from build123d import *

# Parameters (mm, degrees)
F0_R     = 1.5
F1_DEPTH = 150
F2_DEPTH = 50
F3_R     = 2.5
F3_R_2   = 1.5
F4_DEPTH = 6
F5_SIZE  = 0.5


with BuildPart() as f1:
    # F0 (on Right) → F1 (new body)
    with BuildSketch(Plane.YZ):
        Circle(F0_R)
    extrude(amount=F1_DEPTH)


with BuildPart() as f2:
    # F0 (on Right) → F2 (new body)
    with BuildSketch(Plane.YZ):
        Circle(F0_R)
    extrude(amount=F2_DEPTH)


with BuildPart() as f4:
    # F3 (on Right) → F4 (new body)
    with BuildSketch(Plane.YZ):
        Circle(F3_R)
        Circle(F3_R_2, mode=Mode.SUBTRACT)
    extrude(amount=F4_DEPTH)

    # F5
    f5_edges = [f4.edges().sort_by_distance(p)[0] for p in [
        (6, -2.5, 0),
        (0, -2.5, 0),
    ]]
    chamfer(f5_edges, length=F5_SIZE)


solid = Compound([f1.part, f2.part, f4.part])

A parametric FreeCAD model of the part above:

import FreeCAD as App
import Part
import Sketcher
Q = App.Units.Quantity


def edges_at(feature, points):
    """Names of the edges that pass closest to the given points."""
    edges = feature.Shape.Edges
    near = lambda p: min(range(len(edges)), key=lambda i: edges[i].distToShape(Part.Vertex(*p))[0])
    return sorted({f"Edge{near(p) + 1}" for p in points})

doc = App.newDocument("Part")
body = doc.addObject("PartDesign::Body", "Body")

# Sketch on YZ plane
sketch1 = body.newObject("Sketcher::SketchObject", "Sketch")
sketch1.AttachmentSupport = (doc.getObject("YZ_Plane"), [""])
sketch1.MapMode = "FlatFace"
sketch1.addGeometry(Part.Circle(App.Vector(0, 0, 0), App.Vector(0, 0, 1), 1.5), False)
sketch1.addConstraint([
    Sketcher.Constraint("Coincident", 0, 3, -1, 1),
    Sketcher.Constraint("Diameter", 0, Q("3 mm")),
])
pad1 = body.newObject("PartDesign::Pad", "Pad")
pad1.Profile = sketch1
pad1.Length = 150
body2 = doc.addObject("PartDesign::Body", "Body001")

# Sketch on YZ plane
sketch2 = body2.newObject("Sketcher::SketchObject", "Sketch001")
sketch2.AttachmentSupport = (doc.getObject("YZ_Plane001"), [""])
sketch2.MapMode = "FlatFace"
sketch2.addGeometry(Part.Circle(App.Vector(0, 0, 0), App.Vector(0, 0, 1), 1.5), False)
sketch2.addConstraint([
    Sketcher.Constraint("Coincident", 0, 3, -1, 1),
    Sketcher.Constraint("Diameter", 0, Q("3 mm")),
])
pad2 = body2.newObject("PartDesign::Pad", "Pad001")
pad2.Profile = sketch2
pad2.Length = 50
body3 = doc.addObject("PartDesign::Body", "Body002")

# Sketch on YZ plane
sketch3 = body3.newObject("Sketcher::SketchObject", "Sketch002")
sketch3.AttachmentSupport = (doc.getObject("YZ_Plane002"), [""])
sketch3.MapMode = "FlatFace"
sketch3.addGeometry([
    Part.Circle(App.Vector(0, 0, 0), App.Vector(0, 0, 1), 2.5),
    Part.Circle(App.Vector(0, 0, 0), App.Vector(0, 0, 1), 1.5),
], False)
sketch3.addConstraint([
    Sketcher.Constraint("Coincident", 0, 3, -1, 1),
    Sketcher.Constraint("Coincident", 1, 3, -1, 1),
    Sketcher.Constraint("Diameter", 0, Q("5 mm")),
    Sketcher.Constraint("Diameter", 1, Q("3 mm")),
])
pad3 = body3.newObject("PartDesign::Pad", "Pad002")
pad3.Profile = sketch3
pad3.Length = 6
doc.recompute()

chamfer = body3.newObject("PartDesign::Chamfer", "Chamfer")
chamfer.Base = (pad3, edges_at(pad3, [(6, -2.5, 0), (0, -2.5, 0)]))
chamfer.Size = 0.5

doc.recompute()
